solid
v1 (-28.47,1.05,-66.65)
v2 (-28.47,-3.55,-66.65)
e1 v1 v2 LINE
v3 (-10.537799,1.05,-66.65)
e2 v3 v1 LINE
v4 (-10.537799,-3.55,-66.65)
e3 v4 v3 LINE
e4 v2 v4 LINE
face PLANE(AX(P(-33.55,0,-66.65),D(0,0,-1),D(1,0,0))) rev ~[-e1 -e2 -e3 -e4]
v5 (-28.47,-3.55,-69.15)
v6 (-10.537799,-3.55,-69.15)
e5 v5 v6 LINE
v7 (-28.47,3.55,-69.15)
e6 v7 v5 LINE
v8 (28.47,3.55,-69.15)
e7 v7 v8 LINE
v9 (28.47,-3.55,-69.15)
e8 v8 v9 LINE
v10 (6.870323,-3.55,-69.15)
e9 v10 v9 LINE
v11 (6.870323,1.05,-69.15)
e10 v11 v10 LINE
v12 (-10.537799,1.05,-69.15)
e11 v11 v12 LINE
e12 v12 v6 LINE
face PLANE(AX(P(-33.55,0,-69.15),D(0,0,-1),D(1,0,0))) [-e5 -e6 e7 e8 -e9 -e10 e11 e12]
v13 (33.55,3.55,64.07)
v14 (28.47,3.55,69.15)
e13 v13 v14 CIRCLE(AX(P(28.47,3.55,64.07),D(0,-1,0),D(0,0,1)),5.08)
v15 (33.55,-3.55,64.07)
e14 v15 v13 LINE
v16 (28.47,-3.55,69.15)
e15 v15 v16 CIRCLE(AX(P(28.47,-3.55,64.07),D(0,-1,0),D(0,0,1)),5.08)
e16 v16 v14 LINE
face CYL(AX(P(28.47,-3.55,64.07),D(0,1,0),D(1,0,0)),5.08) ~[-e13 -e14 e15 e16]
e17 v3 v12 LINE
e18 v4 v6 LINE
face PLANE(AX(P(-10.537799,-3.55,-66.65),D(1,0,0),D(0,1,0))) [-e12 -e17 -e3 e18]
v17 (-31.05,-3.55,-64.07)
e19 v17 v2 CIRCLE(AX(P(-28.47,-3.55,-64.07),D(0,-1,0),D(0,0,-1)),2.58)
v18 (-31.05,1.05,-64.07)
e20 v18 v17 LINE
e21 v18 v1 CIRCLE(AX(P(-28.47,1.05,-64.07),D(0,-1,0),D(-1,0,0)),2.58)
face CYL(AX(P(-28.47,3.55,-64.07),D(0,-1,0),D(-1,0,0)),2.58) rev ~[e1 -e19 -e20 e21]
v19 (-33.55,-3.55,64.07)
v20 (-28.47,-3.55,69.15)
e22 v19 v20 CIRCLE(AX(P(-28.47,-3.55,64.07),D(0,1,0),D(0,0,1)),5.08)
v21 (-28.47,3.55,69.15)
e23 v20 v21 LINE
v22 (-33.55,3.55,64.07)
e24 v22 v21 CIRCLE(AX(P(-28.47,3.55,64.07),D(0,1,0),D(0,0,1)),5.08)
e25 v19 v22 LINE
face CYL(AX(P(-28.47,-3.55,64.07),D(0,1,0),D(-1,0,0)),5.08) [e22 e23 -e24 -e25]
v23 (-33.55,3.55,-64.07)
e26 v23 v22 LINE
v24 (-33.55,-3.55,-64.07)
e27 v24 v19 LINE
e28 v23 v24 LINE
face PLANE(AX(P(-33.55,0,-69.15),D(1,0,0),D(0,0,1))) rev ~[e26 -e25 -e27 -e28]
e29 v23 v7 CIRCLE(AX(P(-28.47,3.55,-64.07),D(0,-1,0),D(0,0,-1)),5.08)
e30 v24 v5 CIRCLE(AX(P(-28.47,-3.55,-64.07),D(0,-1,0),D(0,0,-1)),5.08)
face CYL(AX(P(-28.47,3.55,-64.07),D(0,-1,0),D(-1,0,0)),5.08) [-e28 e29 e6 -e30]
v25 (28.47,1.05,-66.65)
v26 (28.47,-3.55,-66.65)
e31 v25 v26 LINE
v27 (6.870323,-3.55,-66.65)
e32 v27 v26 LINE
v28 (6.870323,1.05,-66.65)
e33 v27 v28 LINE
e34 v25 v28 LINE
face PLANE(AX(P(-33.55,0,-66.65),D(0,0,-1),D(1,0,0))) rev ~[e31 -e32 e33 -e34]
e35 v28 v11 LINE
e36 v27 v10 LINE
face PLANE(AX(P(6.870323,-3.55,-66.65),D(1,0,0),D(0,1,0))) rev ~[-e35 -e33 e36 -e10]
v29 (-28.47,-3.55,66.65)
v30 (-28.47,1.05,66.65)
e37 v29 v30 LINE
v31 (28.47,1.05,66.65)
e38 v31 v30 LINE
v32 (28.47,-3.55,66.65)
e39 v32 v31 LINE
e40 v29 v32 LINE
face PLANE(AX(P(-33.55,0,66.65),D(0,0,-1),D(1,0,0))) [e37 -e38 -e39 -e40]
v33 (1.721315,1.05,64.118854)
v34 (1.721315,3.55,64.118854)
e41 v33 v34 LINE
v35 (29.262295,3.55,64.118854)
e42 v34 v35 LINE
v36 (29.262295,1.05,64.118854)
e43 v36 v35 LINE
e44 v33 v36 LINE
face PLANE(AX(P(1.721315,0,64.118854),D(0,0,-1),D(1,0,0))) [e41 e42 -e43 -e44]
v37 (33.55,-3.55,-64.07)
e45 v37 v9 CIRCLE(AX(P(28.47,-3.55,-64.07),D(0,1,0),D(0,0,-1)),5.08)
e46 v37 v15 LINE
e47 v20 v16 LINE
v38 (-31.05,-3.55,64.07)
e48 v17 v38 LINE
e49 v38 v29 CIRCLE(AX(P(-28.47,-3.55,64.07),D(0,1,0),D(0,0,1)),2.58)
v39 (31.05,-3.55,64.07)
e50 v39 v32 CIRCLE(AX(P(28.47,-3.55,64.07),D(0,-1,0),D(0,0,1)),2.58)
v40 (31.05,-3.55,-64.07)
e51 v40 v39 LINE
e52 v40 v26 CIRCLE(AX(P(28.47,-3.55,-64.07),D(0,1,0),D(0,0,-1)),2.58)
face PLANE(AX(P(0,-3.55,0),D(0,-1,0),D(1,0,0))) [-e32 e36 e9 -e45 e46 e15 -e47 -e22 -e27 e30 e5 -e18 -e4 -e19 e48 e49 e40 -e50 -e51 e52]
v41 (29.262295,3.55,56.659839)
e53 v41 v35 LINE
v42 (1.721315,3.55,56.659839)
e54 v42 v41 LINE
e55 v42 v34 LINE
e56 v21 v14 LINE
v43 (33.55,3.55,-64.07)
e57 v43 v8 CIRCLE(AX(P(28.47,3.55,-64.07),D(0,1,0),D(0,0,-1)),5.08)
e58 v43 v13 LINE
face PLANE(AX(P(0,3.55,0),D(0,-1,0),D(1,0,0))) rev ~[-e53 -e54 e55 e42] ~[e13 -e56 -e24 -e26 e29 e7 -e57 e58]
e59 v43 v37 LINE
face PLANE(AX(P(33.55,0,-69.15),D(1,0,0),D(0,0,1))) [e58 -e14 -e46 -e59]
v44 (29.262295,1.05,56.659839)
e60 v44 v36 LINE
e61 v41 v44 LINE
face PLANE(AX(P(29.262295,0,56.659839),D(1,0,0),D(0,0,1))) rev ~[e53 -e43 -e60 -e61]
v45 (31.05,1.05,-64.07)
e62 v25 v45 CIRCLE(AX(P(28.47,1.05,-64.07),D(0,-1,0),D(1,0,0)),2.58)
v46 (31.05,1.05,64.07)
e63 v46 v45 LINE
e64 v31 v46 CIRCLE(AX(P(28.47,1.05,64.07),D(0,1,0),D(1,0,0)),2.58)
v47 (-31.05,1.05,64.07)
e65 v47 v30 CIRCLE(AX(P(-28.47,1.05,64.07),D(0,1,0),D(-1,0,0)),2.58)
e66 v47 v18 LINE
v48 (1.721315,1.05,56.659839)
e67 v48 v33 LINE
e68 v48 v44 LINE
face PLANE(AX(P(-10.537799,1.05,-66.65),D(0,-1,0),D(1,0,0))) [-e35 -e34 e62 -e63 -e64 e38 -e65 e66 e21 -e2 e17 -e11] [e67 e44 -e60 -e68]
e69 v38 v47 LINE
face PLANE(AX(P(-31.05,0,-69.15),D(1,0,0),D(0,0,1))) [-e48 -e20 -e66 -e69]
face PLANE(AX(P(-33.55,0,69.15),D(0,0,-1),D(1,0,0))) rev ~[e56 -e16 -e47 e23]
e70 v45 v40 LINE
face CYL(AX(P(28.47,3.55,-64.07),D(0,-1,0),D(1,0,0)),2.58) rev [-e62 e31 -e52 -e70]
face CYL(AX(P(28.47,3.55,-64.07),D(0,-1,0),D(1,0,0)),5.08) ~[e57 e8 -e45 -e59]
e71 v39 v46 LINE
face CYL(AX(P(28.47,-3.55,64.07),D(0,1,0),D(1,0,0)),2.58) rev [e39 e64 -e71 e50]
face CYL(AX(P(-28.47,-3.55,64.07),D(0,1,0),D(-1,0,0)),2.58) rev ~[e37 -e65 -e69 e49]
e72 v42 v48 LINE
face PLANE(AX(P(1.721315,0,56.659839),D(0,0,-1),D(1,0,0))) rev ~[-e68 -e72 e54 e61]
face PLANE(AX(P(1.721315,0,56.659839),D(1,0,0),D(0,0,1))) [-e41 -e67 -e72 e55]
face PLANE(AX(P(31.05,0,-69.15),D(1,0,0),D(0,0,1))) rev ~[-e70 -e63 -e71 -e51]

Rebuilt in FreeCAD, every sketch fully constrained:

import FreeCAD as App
import Part
import Sketcher

V = App.Vector


def edges_at(feature, points):
    """Names of the edges that pass closest to the given points."""
    edges = feature.Shape.Edges
    near = lambda p: min(range(len(edges)), key=lambda i: edges[i].distToShape(Part.Vertex(*p))[0])
    return sorted({f"Edge{near(p) + 1}" for p in points})


def faces_at(feature, points):
    """Names of the faces that lie closest to the given points."""
    faces = feature.Shape.Faces
    near = lambda p: min(range(len(faces)), key=lambda i: faces[i].distToShape(Part.Vertex(*p))[0])
    return sorted({f"Face{near(p) + 1}" for p in points})


def add_polygon(sketch, points):
    """Adds a closed chain of lines whose ends are joined by coincident constraints."""
    first, n = sketch.GeometryCount, len(points)
    for a, b in zip(points, points[1:] + points[:1]):
        sketch.addGeometry(Part.LineSegment(App.Vector(*a, 0), App.Vector(*b, 0)), False)
    for i in range(n):
        sketch.addConstraint(Sketcher.Constraint("Coincident", first + i, 2, first + (i + 1) % n, 1))

doc = App.newDocument("Part")
params = doc.addObject("Spreadsheet::Sheet", "Params")
for row, (alias, value) in enumerate([
    ("sketch1_width", "67.1 mm"),
    ("sketch1_height", "138.3 mm"),
    ("pad1_length", "7.1 mm"),
    ("fillet_radius", "5.08 mm"),
    ("thickness_wall", "2.5 mm"),
    ("pocket1_length", "25 mm"),
    ("sketch3_height", "4.6 mm"),
    ("pocket2_length", "25 mm"),
], start=1):
    params.set(f"A{row}", alias)
    params.set(f"B{row}", "=" + value)
    params.setAlias(f"B{row}", alias)

body = doc.addObject("PartDesign::Body", "Body")

# Sketch on XZ plane
sketch1 = body.newObject("Sketcher::SketchObject", "Sketch")
sketch1.AttachmentSupport = (doc.getObject("XZ_Plane"), [""])
sketch1.MapMode = "FlatFace"
add_polygon(sketch1, [(-34, 69), (-34, -69), (34, -69), (34, 69)])  # lines 0-3
sketch1.addConstraint(Sketcher.Constraint("Vertical", 0))
sketch1.addConstraint(Sketcher.Constraint("Horizontal", 1))
sketch1.addConstraint(Sketcher.Constraint("Vertical", 2))
sketch1.addConstraint(Sketcher.Constraint("Horizontal", 3))
sketch1.addConstraint(Sketcher.Constraint("Symmetric", 0, 2, 2, 2, -1, 1))
sketch1.addConstraint(Sketcher.Constraint("DistanceX", 1, 1, 1, 2, 67.1))
sketch1.addConstraint(Sketcher.Constraint("DistanceY", 0, 2, 0, 1, 138.3))
sketch1.setExpression("Constraints[9]", "Params.sketch1_width")
sketch1.setExpression("Constraints[10]", "Params.sketch1_height")
pad1 = body.newObject("PartDesign::Pad", "Pad")
pad1.Profile = sketch1
pad1.setExpression("Length", "Params.pad1_length")
pad1.Midplane = True
doc.recompute()

fillet = body.newObject("PartDesign::Fillet", "Fillet")
fillet.Base = (pad1, edges_at(pad1, [
    (-33.55, 0, 69.15),
    (-33.55, 0, -69.15),
    (33.55, 0, -69.15),
    (33.55, 0, 69.15),
]))
fillet.setExpression("Radius", "Params.fillet_radius")
doc.recompute()

thickness = body.newObject("PartDesign::Thickness", "Thickness")
thickness.Base = (fillet, faces_at(fillet, [(0, -3.55, 0)]))
thickness.setExpression("Value", "Params.thickness_wall")
thickness.Reversed = True
thickness.Join = "Arc"

# Sketch on XZ plane
sketch2 = body.newObject("Sketcher::SketchObject", "Sketch001")
sketch2.AttachmentSupport = (doc.getObject("XZ_Plane"), [""])
sketch2.MapMode = "FlatFace"
add_polygon(sketch2, [(2, 64), (2, 57), (29, 57), (29, 64)])  # lines 0-3
sketch2.addConstraint(Sketcher.Constraint("Vertical", 0))
sketch2.addConstraint(Sketcher.Constraint("Horizontal", 1))
sketch2.addConstraint(Sketcher.Constraint("Vertical", 2))
sketch2.addConstraint(Sketcher.Constraint("Horizontal", 3))
sketch2.addConstraint(Sketcher.Constraint("DistanceX", 1, 1, 1, 2, 27.54098))
sketch2.addConstraint(Sketcher.Constraint("DistanceY", 0, 2, 0, 1, 7.459015))
sketch2.addConstraint(Sketcher.Constraint("DistanceY", -1, 1, 0, 2, 56.659839))
sketch2.addConstraint(Sketcher.Constraint("DistanceX", -1, 1, 0, 2, 1.721315))
pocket1 = body.newObject("PartDesign::Pocket", "Pocket")
pocket1.Profile = sketch2
pocket1.setExpression("Length", "Params.pocket1_length")
pocket1.Midplane = True

# Sketch on XY plane
sketch3 = body.newObject("Sketcher::SketchObject", "Sketch002")
sketch3.AttachmentSupport = (doc.getObject("XY_Plane"), [""])
sketch3.MapMode = "FlatFace"
sketch3.AttachmentOffset = App.Placement(V(0, 0, -66.65), App.Rotation())
add_polygon(sketch3, [(-10.5, 1.1), (-10.5, -3.5), (6.9, -3.5), (6.9, 1.1)])  # lines 0-3
sketch3.addConstraint(Sketcher.Constraint("Vertical", 0))
sketch3.addConstraint(Sketcher.Constraint("Horizontal", 1))
sketch3.addConstraint(Sketcher.Constraint("Vertical", 2))
sketch3.addConstraint(Sketcher.Constraint("Horizontal", 3))
sketch3.addConstraint(Sketcher.Constraint("DistanceY", 0, 2, 0, 1, 4.6))
sketch3.addConstraint(Sketcher.Constraint("DistanceY", 0, 2, -1, 1, 3.55))
sketch3.addConstraint(Sketcher.Constraint("DistanceX", 1, 1, 1, 2, 17.408122))
sketch3.addConstraint(Sketcher.Constraint("DistanceX", 0, 2, -1, 1, 10.537799))
sketch3.setExpression("Constraints[8]", "Params.sketch3_height")
pocket2 = body.newObject("PartDesign::Pocket", "Pocket001")
pocket2.Profile = sketch3
pocket2.setExpression("Length", "Params.pocket2_length")

doc.recompute()
